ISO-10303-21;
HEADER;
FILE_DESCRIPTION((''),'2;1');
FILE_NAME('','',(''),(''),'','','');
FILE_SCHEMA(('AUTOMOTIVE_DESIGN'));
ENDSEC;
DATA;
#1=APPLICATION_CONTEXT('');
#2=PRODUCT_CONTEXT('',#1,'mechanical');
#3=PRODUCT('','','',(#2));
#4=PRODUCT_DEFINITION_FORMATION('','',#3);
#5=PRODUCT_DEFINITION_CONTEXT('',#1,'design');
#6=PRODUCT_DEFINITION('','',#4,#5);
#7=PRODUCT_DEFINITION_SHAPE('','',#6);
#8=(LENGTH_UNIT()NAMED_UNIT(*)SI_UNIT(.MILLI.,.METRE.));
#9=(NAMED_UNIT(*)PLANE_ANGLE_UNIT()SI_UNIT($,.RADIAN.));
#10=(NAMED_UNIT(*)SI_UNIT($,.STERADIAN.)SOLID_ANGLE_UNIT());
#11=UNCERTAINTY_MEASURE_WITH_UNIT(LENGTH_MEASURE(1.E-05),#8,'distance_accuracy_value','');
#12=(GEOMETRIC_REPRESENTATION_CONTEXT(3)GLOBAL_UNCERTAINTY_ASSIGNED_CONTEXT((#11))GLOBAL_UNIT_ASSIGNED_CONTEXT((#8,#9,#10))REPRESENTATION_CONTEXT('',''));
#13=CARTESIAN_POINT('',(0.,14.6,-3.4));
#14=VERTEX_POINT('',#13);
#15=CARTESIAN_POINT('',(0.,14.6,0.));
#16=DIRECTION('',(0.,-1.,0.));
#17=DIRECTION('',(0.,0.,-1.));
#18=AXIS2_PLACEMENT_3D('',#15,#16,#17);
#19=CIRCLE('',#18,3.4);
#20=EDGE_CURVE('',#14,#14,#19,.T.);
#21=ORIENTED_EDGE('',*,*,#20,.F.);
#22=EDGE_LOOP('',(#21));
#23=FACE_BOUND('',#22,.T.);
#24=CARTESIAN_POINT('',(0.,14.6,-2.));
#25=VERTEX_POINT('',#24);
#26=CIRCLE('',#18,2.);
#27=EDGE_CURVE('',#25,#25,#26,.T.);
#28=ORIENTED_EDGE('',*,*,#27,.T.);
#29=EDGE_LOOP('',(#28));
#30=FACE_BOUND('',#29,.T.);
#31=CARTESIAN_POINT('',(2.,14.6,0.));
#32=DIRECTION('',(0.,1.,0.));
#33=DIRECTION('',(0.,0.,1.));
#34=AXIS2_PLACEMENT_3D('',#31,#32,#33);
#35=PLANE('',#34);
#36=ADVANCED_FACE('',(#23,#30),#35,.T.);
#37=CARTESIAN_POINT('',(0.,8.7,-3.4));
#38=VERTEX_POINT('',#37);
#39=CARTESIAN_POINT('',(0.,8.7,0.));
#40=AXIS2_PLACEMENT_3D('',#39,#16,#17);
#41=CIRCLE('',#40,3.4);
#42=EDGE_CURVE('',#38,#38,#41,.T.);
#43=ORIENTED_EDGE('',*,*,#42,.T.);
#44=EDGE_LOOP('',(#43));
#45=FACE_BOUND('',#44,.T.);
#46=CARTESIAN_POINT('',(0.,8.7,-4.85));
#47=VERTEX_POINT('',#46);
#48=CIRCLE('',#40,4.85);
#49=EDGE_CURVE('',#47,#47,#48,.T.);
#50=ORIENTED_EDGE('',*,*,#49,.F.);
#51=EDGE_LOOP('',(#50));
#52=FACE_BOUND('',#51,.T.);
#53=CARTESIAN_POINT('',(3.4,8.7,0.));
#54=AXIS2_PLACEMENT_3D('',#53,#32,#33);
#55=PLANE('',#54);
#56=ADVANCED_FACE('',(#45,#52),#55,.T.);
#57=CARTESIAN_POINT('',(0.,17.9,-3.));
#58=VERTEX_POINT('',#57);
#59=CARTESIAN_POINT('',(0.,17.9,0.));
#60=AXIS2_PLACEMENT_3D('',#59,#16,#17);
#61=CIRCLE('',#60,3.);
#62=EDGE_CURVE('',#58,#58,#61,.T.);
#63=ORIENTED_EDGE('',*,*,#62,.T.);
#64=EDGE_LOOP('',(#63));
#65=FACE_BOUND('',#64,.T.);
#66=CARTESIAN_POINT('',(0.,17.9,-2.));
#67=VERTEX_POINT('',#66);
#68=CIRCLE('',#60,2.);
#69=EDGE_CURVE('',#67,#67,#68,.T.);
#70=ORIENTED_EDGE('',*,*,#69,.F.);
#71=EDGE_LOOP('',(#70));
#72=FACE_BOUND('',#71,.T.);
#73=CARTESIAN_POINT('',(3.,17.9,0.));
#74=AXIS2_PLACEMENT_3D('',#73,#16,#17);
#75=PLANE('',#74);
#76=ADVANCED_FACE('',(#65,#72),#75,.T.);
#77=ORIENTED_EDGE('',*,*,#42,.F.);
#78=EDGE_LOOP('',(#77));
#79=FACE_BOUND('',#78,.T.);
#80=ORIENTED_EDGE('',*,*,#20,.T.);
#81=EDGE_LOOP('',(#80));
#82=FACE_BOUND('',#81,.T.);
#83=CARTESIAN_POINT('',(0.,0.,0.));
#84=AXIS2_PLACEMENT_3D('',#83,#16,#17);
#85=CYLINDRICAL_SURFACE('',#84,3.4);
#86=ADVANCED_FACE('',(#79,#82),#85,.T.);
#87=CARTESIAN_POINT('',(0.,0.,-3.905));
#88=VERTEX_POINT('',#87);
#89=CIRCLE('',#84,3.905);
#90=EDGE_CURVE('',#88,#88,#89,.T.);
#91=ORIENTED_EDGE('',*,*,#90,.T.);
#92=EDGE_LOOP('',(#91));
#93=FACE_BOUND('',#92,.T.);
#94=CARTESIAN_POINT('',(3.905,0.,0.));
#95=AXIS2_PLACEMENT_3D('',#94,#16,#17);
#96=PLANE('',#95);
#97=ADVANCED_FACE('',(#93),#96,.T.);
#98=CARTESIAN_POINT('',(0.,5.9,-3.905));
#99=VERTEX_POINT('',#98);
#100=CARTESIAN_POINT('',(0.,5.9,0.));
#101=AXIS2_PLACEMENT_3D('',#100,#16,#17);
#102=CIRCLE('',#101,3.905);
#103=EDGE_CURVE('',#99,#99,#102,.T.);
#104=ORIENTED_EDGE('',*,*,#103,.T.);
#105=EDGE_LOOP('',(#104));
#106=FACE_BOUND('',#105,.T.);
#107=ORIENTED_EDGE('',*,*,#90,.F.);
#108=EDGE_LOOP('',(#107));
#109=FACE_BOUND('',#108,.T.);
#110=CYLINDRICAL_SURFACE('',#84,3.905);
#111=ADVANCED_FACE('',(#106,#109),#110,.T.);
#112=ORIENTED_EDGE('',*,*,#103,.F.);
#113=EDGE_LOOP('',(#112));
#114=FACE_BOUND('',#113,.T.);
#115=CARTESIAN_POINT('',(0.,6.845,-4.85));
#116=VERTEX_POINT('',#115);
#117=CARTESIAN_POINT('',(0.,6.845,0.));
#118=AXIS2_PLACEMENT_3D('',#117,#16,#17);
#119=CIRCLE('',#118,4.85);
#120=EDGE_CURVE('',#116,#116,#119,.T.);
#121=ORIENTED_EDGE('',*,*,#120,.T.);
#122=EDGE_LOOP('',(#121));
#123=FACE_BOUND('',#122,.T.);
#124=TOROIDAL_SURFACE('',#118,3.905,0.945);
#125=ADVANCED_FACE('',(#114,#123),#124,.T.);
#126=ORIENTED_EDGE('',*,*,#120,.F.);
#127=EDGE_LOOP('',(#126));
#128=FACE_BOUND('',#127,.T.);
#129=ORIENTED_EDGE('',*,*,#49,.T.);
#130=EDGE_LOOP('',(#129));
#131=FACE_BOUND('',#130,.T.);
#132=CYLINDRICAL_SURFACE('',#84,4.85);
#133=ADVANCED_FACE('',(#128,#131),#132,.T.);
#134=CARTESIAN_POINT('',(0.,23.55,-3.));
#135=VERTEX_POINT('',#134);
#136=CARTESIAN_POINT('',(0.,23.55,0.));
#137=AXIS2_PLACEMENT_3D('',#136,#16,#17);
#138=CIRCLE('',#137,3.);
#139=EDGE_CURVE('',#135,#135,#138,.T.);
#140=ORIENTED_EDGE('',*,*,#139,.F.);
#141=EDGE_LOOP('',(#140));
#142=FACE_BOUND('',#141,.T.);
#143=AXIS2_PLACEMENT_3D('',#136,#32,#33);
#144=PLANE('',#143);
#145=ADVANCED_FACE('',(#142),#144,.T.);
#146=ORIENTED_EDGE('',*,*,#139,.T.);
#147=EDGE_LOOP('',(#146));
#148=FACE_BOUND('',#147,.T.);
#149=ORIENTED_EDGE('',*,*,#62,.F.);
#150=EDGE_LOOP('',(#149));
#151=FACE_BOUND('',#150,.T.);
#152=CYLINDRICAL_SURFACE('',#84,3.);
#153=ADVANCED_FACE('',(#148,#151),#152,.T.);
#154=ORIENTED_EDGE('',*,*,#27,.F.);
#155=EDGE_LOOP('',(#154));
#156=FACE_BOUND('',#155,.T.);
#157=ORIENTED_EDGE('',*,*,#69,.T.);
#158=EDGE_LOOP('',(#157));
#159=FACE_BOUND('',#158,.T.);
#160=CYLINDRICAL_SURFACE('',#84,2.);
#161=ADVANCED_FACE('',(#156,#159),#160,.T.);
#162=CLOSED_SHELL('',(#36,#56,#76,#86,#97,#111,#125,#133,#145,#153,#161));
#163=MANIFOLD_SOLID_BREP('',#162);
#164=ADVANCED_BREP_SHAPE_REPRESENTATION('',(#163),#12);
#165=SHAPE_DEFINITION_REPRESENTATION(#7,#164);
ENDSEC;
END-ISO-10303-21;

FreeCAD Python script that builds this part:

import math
import FreeCAD as App
import Part
import Sketcher

V = App.Vector

doc = App.newDocument("Part")
params = doc.addObject("Spreadsheet::Sheet", "Params")
for row, (alias, value) in enumerate([
    ("sketch1_width", "3 mm"),
    ("sketch1_width2", "1 mm"),
    ("sketch1_width3", "1.4 mm"),
    ("sketch1_height", "5.9 mm"),
    ("sketch1_height2", "3.3 mm"),
    ("revolution_angle", "360 deg"),
], start=1):
    params.set(f"A{row}", alias)
    params.set(f"B{row}", "=" + value)
    params.setAlias(f"B{row}", alias)

body = doc.addObject("PartDesign::Body", "Body")

# Sketch on XY plane
sketch1 = body.newObject("Sketcher::SketchObject", "Sketch")
sketch1.AttachmentSupport = (doc.getObject("XY_Plane"), [""])
sketch1.MapMode = "FlatFace"
sketch1.addGeometry(Part.LineSegment(V(3, 23.6, 0), V(0, 23.6, 0)), False)
sketch1.addGeometry(Part.LineSegment(V(0, 23.6, 0), V(0, 0, 0)), False)
sketch1.addGeometry(Part.LineSegment(V(0, 0, 0), V(3.9, 0, 0)), False)
sketch1.addGeometry(Part.LineSegment(V(3.9, 0, 0), V(3.9, 5.9, 0)), False)
sketch1.addGeometry(Part.ArcOfCircle(Part.Circle(V(3.9, 6.8, 0), V(0, 0, 1), 0.9), math.radians(-90), math.radians(0)), False)
sketch1.addGeometry(Part.LineSegment(V(4.8, 6.8, 0), V(4.8, 8.7, 0)), False)
sketch1.addGeometry(Part.LineSegment(V(4.8, 8.7, 0), V(3.4, 8.7, 0)), False)
sketch1.addGeometry(Part.LineSegment(V(3.4, 8.7, 0), V(3.4, 14.6, 0)), False)
sketch1.addGeometry(Part.LineSegment(V(3.4, 14.6, 0), V(2, 14.6, 0)), False)
sketch1.addGeometry(Part.LineSegment(V(2, 14.6, 0), V(2, 17.9, 0)), False)
sketch1.addGeometry(Part.LineSegment(V(2, 17.9, 0), V(3, 17.9, 0)), False)
sketch1.addGeometry(Part.LineSegment(V(3, 17.9, 0), V(3, 23.6, 0)), False)
sketch1.addConstraint(Sketcher.Constraint("Coincident", 0, 2, 1, 1))
sketch1.addConstraint(Sketcher.Constraint("Coincident", 1, 2, 2, 1))
sketch1.addConstraint(Sketcher.Constraint("Coincident", 2, 2, 3, 1))
sketch1.addConstraint(Sketcher.Constraint("Coincident", 3, 2, 4, 1))
sketch1.addConstraint(Sketcher.Constraint("Tangent", 4, 2, 5, 1))
sketch1.addConstraint(Sketcher.Constraint("Coincident", 5, 2, 6, 1))
sketch1.addConstraint(Sketcher.Constraint("Coincident", 6, 2, 7, 1))
sketch1.addConstraint(Sketcher.Constraint("Coincident", 7, 2, 8, 1))
sketch1.addConstraint(Sketcher.Constraint("Coincident", 8, 2, 9, 1))
sketch1.addConstraint(Sketcher.Constraint("Coincident", 9, 2, 10, 1))
sketch1.addConstraint(Sketcher.Constraint("Coincident", 10, 2, 11, 1))
sketch1.addConstraint(Sketcher.Constraint("Coincident", 11, 2, 0, 1))
sketch1.addConstraint(Sketcher.Constraint("Horizontal", 0))
sketch1.addConstraint(Sketcher.Constraint("Vertical", 1))
sketch1.addConstraint(Sketcher.Constraint("Horizontal", 2))
sketch1.addConstraint(Sketcher.Constraint("Vertical", 3))
sketch1.addConstraint(Sketcher.Constraint("Vertical", 5))
sketch1.addConstraint(Sketcher.Constraint("Horizontal", 6))
sketch1.addConstraint(Sketcher.Constraint("Vertical", 7))
sketch1.addConstraint(Sketcher.Constraint("Horizontal", 8))
sketch1.addConstraint(Sketcher.Constraint("Vertical", 9))
sketch1.addConstraint(Sketcher.Constraint("Horizontal", 10))
sketch1.addConstraint(Sketcher.Constraint("Vertical", 11))
sketch1.addConstraint(Sketcher.Constraint("Coincident", 1, 2, -1, 1))
sketch1.addConstraint(Sketcher.Constraint("Vertical", 4, 3, 2, 2))
sketch1.addConstraint(Sketcher.Constraint("Equal", 3, 7))
sketch1.addConstraint(Sketcher.Constraint("DistanceX", 0, 2, 0, 1, 3.0))
sketch1.addConstraint(Sketcher.Constraint("DistanceX", 10, 1, 10, 2, 1.0))
sketch1.addConstraint(Sketcher.Constraint("DistanceX", 8, 2, 8, 1, 1.4))
sketch1.addConstraint(Sketcher.Constraint("DistanceY", 3, 1, 3, 2, 5.9))
sketch1.addConstraint(Sketcher.Constraint("DistanceY", 9, 1, 9, 2, 3.3))
sketch1.addConstraint(Sketcher.Constraint("Radius", 4, 0.945))
sketch1.addConstraint(Sketcher.Constraint("DistanceX", 6, 2, 6, 1, 1.45))
sketch1.addConstraint(Sketcher.Constraint("DistanceY", 1, 2, 1, 1, 23.55))
sketch1.addConstraint(Sketcher.Constraint("DistanceY", 11, 1, 11, 2, 5.65))
sketch1.setExpression("Constraints[26]", "Params.sketch1_width")
sketch1.setExpression("Constraints[27]", "Params.sketch1_width2")
sketch1.setExpression("Constraints[28]", "Params.sketch1_width3")
sketch1.setExpression("Constraints[29]", "Params.sketch1_height")
sketch1.setExpression("Constraints[30]", "Params.sketch1_height2")
revolution = body.newObject("PartDesign::Revolution", "Revolution")
revolution.Profile = sketch1
revolution.ReferenceAxis = (sketch1, ["V_Axis"])
revolution.setExpression("Angle", "Params.revolution_angle")

doc.recompute()
